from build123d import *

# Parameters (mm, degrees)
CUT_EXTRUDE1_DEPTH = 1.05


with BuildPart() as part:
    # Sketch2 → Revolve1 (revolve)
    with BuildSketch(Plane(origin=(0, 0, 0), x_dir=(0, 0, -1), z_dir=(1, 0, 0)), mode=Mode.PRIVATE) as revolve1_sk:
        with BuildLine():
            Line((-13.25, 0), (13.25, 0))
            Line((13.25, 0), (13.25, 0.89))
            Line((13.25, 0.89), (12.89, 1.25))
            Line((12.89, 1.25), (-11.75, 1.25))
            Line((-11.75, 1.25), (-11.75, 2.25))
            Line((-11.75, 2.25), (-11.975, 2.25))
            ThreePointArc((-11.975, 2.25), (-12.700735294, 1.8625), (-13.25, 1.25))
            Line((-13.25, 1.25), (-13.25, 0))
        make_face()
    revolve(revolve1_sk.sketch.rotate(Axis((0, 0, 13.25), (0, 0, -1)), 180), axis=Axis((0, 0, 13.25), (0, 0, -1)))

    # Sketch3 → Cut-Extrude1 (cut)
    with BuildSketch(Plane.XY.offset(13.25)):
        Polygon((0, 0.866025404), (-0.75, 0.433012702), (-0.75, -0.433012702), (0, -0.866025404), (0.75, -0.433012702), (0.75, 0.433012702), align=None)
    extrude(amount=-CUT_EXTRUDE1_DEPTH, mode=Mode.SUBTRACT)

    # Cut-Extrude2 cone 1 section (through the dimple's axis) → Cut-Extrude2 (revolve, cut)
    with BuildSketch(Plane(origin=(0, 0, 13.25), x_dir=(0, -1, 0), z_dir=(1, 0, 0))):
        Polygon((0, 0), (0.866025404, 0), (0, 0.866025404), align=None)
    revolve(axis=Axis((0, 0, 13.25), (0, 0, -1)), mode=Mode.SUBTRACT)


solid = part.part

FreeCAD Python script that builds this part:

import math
import FreeCAD as App
import Part
import Sketcher
Q = App.Units.Quantity

doc = App.newDocument("Part")
body = doc.addObject("PartDesign::Body", "Body")

# Sketch on YZ plane
sketch1 = body.newObject("Sketcher::SketchObject", "Sketch")
sketch1.AttachmentSupport = (doc.getObject("YZ_Plane"), [""])
sketch1.MapMode = "FlatFace"
sketch1.addGeometry(Part.LineSegment(App.Vector(0, 13.25, 0), App.Vector(0, -13.25, 0)), False)
sketch1.addGeometry(Part.LineSegment(App.Vector(0, -13.25, 0), App.Vector(0.89, -13.25, 0)), False)
sketch1.addGeometry(Part.LineSegment(App.Vector(0.89, -13.25, 0), App.Vector(1.25, -12.89, 0)), False)
sketch1.addGeometry(Part.LineSegment(App.Vector(1.25, -12.89, 0), App.Vector(1.25, 11.75, 0)), False)
sketch1.addGeometry(Part.LineSegment(App.Vector(1.25, 11.75, 0), App.Vector(2.25, 11.75, 0)), False)
sketch1.addGeometry(Part.LineSegment(App.Vector(2.25, 11.75, 0), App.Vector(2.25, 11.97, 0)), False)
sketch1.addGeometry(Part.ArcOfCircle(Part.Circle(App.Vector(0, 11.24, 0), App.Vector(0, 0, 1), 2.37), math.radians(18), math.radians(58)), False)
sketch1.addGeometry(Part.LineSegment(App.Vector(1.25, 13.25, 0), App.Vector(0, 13.25, 0)), False)
sketch1.addConstraint(Sketcher.Constraint("Coincident", 0, 2, 1, 1))
sketch1.addConstraint(Sketcher.Constraint("Coincident", 1, 2, 2, 1))
sketch1.addConstraint(Sketcher.Constraint("Coincident", 2, 2, 3, 1))
sketch1.addConstraint(Sketcher.Constraint("Coincident", 3, 2, 4, 1))
sketch1.addConstraint(Sketcher.Constraint("Coincident", 4, 2, 5, 1))
sketch1.addConstraint(Sketcher.Constraint("Coincident", 5, 2, 6, 1))
sketch1.addConstraint(Sketcher.Constraint("Coincident", 6, 2, 7, 1))
sketch1.addConstraint(Sketcher.Constraint("Coincident", 7, 2, 0, 1))
sketch1.addConstraint(Sketcher.Constraint("Vertical", 0))
sketch1.addConstraint(Sketcher.Constraint("Horizontal", 1))
sketch1.addConstraint(Sketcher.Constraint("Vertical", 3))
sketch1.addConstraint(Sketcher.Constraint("Horizontal", 4))
sketch1.addConstraint(Sketcher.Constraint("Vertical", 5))
sketch1.addConstraint(Sketcher.Constraint("Horizontal", 7))
sketch1.addConstraint(Sketcher.Constraint("Symmetric", 0, 2, 7, 2, -1, 1))
sketch1.addConstraint(Sketcher.Constraint("PointOnObject", 6, 3, -2))
sketch1.addConstraint(Sketcher.Constraint("Vertical", 3, 2, 6, 2))
sketch1.addConstraint(Sketcher.Constraint("DistanceX", 4, 1, 4, 2, Q("1 mm")))
sketch1.addConstraint(Sketcher.Constraint("Angle", 2, Q("45 deg")))
sketch1.addConstraint(Sketcher.Constraint("DistanceY", 0, 2, 0, 1, Q("26.5 mm")))
sketch1.addConstraint(Sketcher.Constraint("DistanceY", 1, 2, 3, 2, Q("25 mm")))
sketch1.addConstraint(Sketcher.Constraint("DistanceX", 1, 1, 1, 2, Q("0.89 mm")))
sketch1.addConstraint(Sketcher.Constraint("DistanceX", 7, 2, 7, 1, Q("1.25 mm")))
sketch1.addConstraint(Sketcher.Constraint("DistanceY", 5, 1, 5, 2, Q("0.225 mm")))
revolution = body.newObject("PartDesign::Revolution", "Revolution")
revolution.Profile = sketch1
revolution.ReferenceAxis = (sketch1, ["V_Axis"])
revolution.Angle = 360

# Sketch on XY plane
sketch2 = body.newObject("Sketcher::SketchObject", "Sketch001")
sketch2.AttachmentSupport = (doc.getObject("XY_Plane"), [""])
sketch2.MapMode = "FlatFace"
sketch2.AttachmentOffset = App.Placement(App.Vector(0, 0, 13.25), App.Rotation())
sketch2.addGeometry(Part.LineSegment(App.Vector(0, 0.9, 0), App.Vector(-0.8, 0.4, 0)), False)
sketch2.addGeometry(Part.LineSegment(App.Vector(-0.8, 0.4, 0), App.Vector(-0.8, -0.4, 0)), False)
sketch2.addGeometry(Part.LineSegment(App.Vector(-0.8, -0.4, 0), App.Vector(0, -0.9, 0)), False)
sketch2.addGeometry(Part.LineSegment(App.Vector(0, -0.9, 0), App.Vector(0.8, -0.4, 0)), False)
sketch2.addGeometry(Part.LineSegment(App.Vector(0.8, -0.4, 0), App.Vector(0.8, 0.4, 0)), False)
sketch2.addGeometry(Part.LineSegment(App.Vector(0.8, 0.4, 0), App.Vector(0, 0.9, 0)), False)
sketch2.addConstraint(Sketcher.Constraint("Coincident", 0, 2, 1, 1))
sketch2.addConstraint(Sketcher.Constraint("Coincident", 1, 2, 2, 1))
sketch2.addConstraint(Sketcher.Constraint("Coincident", 2, 2, 3, 1))
sketch2.addConstraint(Sketcher.Constraint("Coincident", 3, 2, 4, 1))
sketch2.addConstraint(Sketcher.Constraint("Coincident", 4, 2, 5, 1))
sketch2.addConstraint(Sketcher.Constraint("Coincident", 5, 2, 0, 1))
sketch2.addConstraint(Sketcher.Constraint("Vertical", 1))
sketch2.addConstraint(Sketcher.Constraint("Vertical", 4))
sketch2.addConstraint(Sketcher.Constraint("Symmetric", 0, 2, 3, 2, -1, 1))
sketch2.addConstraint(Sketcher.Constraint("Symmetric", 2, 2, 5, 2, -1, 1))
sketch2.addConstraint(Sketcher.Constraint("PointOnObject", 2, 2, -2))
sketch2.addConstraint(Sketcher.Constraint("Parallel", 2, 5))
sketch2.addConstraint(Sketcher.Constraint("Horizontal", 1, 2, 3, 2))
sketch2.addConstraint(Sketcher.Constraint("Angle", 0, Q("-150 deg")))
sketch2.addConstraint(Sketcher.Constraint("DistanceX", 1, 2, 3, 2, Q("1.5 mm")))
sketch2.addConstraint(Sketcher.Constraint("DistanceY", 1, 2, 1, 1, Q("0.866025 mm")))
pocket1 = body.newObject("PartDesign::Pocket", "Pocket")
pocket1.Profile = sketch2
pocket1.Length = 1.05

# Sketch on YZ plane
sketch3 = body.newObject("Sketcher::SketchObject", "Sketch002")
sketch3.AttachmentSupport = (doc.getObject("YZ_Plane"), [""])
sketch3.MapMode = "FlatFace"
sketch3.addGeometry(Part.LineSegment(App.Vector(0, 13.2, 0), App.Vector(-0.9, 13.2, 0)), False)
sketch3.addGeometry(Part.LineSegment(App.Vector(-0.9, 13.2, 0), App.Vector(0, 12.4, 0)), False)
sketch3.addGeometry(Part.LineSegment(App.Vector(0, 12.4, 0), App.Vector(0, 13.2, 0)), False)
sketch3.addConstraint(Sketcher.Constraint("Coincident", 0, 2, 1, 1))
sketch3.addConstraint(Sketcher.Constraint("Coincident", 1, 2, 2, 1))
sketch3.addConstraint(Sketcher.Constraint("Coincident", 2, 2, 0, 1))
sketch3.addConstraint(Sketcher.Constraint("Horizontal", 0))
sketch3.addConstraint(Sketcher.Constraint("Vertical", 2))
sketch3.addConstraint(Sketcher.Constraint("PointOnObject", 1, 2, -2))
sketch3.addConstraint(Sketcher.Constraint("Equal", 0, 2))
sketch3.addConstraint(Sketcher.Constraint("DistanceY", -1, 1, 0, 2, Q("13.25 mm")))
sketch3.addConstraint(Sketcher.Constraint("DistanceX", 0, 2, 0, 1, Q("0.866025 mm")))
groove = body.newObject("PartDesign::Groove", "Groove")
groove.Profile = sketch3
groove.ReferenceAxis = (sketch3, ["V_Axis"])
groove.Angle = 360

doc.recompute()
